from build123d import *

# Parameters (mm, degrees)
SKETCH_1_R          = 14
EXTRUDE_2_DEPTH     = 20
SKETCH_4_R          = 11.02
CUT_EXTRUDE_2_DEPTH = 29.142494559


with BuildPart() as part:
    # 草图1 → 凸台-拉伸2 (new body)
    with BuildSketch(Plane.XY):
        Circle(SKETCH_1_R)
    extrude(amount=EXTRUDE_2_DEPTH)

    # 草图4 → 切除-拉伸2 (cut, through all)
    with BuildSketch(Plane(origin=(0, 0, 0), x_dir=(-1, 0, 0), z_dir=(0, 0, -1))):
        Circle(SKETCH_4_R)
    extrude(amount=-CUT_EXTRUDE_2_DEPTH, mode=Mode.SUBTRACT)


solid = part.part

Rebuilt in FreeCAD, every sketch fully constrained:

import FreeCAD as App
import Part
import Sketcher

V = App.Vector

doc = App.newDocument("Part")
body = doc.addObject("PartDesign::Body", "Body")

# Sketch on XY plane
sketch1 = body.newObject("Sketcher::SketchObject", "Sketch")
sketch1.AttachmentSupport = (doc.getObject("XY_Plane"), [""])
sketch1.MapMode = "FlatFace"
sketch1.addGeometry(Part.Circle(V(0, 0, 0), V(0, 0, 1), 14), False)
sketch1.addConstraint(Sketcher.Constraint("Coincident", 0, 3, -1, 1))
sketch1.addConstraint(Sketcher.Constraint("Diameter", 0, 28.0))
pad1 = body.newObject("PartDesign::Pad", "Pad")
pad1.Profile = sketch1
pad1.Length = 20

# Sketch on XY plane
sketch2 = body.newObject("Sketcher::SketchObject", "Sketch001")
sketch2.AttachmentSupport = (doc.getObject("XY_Plane"), [""])
sketch2.MapMode = "FlatFace"
sketch2.addGeometry(Part.Circle(V(0, 0, 0), V(0, 0, 1), 11.02), False)
sketch2.addConstraint(Sketcher.Constraint("Coincident", 0, 3, -1, 1))
sketch2.addConstraint(Sketcher.Constraint("Diameter", 0, 22.04))
pocket1 = body.newObject("PartDesign::Pocket", "Pocket")
pocket1.Profile = sketch2
pocket1.Type = "ThroughAll"
pocket1.Reversed = True

doc.recompute()
